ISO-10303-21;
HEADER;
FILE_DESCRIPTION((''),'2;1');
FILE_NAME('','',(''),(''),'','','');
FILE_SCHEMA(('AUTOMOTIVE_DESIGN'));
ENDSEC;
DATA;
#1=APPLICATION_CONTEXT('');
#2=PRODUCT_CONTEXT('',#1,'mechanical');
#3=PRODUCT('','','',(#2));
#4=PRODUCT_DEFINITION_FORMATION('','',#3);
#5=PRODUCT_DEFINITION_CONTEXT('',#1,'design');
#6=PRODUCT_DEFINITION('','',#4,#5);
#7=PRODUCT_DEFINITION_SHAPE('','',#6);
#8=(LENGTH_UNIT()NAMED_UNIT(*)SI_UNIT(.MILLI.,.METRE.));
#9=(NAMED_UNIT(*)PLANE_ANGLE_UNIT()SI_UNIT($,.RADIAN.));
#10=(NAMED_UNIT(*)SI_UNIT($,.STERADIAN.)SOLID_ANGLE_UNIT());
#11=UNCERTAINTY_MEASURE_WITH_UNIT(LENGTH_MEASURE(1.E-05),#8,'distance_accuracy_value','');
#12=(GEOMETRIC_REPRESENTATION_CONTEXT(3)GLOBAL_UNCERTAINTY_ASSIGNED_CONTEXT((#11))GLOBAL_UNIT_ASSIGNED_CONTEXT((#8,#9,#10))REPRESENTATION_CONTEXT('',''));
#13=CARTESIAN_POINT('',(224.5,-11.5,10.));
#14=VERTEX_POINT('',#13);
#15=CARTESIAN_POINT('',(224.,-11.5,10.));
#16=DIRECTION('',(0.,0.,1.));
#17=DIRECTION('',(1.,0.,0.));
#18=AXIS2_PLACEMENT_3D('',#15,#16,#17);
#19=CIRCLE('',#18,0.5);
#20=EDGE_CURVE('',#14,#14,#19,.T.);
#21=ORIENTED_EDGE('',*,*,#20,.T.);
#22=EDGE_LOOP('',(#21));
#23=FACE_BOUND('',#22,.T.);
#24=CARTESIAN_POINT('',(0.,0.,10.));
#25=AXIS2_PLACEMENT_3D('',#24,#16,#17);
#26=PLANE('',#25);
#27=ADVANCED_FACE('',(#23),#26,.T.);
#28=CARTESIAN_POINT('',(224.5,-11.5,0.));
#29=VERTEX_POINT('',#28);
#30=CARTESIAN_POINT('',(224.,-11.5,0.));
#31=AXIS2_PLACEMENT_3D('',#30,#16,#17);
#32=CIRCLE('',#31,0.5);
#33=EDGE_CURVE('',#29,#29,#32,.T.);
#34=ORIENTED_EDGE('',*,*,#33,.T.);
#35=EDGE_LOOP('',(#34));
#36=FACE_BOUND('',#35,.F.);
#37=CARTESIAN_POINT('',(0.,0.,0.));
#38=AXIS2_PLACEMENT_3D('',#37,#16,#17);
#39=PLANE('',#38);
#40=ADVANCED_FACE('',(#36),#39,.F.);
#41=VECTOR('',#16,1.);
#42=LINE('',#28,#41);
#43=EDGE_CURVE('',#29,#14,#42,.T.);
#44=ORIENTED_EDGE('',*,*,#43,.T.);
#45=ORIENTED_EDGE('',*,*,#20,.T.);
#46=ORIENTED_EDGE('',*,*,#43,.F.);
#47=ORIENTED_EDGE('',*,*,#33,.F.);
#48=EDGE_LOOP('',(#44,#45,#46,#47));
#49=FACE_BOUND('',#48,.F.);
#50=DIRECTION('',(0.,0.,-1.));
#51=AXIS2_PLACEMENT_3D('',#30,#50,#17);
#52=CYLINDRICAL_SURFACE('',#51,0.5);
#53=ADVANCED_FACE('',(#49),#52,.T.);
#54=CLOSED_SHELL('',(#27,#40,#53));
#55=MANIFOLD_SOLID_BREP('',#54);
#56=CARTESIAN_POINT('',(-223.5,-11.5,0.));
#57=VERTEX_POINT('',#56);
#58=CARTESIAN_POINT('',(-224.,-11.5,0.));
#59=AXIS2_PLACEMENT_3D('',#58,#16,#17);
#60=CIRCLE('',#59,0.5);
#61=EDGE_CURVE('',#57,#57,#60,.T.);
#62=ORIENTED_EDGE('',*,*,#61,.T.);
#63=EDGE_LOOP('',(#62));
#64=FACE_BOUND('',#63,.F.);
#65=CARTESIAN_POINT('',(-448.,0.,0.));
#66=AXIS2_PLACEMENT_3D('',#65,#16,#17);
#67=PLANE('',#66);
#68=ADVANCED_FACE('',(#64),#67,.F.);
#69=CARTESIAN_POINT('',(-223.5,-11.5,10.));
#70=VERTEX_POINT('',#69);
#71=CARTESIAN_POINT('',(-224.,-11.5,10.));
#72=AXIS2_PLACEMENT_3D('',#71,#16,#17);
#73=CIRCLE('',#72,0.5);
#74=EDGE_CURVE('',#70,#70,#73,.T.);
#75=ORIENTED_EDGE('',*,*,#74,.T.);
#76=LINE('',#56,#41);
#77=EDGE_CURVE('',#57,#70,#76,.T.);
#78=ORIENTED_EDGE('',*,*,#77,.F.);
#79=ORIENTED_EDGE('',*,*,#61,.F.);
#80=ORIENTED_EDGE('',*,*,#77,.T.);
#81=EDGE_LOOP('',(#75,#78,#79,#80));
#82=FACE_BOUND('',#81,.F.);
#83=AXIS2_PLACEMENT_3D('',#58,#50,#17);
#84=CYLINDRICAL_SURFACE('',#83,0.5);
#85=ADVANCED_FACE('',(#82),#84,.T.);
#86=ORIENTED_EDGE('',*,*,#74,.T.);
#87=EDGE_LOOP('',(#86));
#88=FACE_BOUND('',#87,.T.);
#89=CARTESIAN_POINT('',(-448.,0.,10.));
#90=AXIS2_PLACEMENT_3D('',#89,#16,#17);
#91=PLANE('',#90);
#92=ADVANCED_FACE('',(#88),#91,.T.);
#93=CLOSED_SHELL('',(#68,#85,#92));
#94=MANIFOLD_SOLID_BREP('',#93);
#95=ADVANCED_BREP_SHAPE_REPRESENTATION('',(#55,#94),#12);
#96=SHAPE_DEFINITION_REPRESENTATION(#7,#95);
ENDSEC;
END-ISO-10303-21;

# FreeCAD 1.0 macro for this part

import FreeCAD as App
import Part
import Sketcher
from FreeCAD import Vector

doc = App.newDocument("Part")
body = doc.addObject("PartDesign::Body", "Body")
body.AllowCompound = True

sketch1 = body.newObject("Sketcher::SketchObject", "Sketch")
sketch1.AttachmentSupport = (doc.getObject("XY_Plane"), [""])
sketch1.MapMode = "FlatFace"
sketch1.addGeometry(Part.Circle(Vector(224, -11.5, 0), Vector(0, 0, 1), 0.5), False)
sketch1.addConstraint([
    Sketcher.Constraint("Diameter", 0, 1.0),
    Sketcher.Constraint("DistanceX", -1, 1, 0, 3, 224.0),
    Sketcher.Constraint("DistanceY", 0, 3, -1, 1, 11.5),
])
pad1 = body.newObject("PartDesign::Pad", "Pad")
pad1.Profile = sketch1
pad1.Length = 10
doc.recompute()

linearpattern = body.newObject("PartDesign::LinearPattern", "LinearPattern")
linearpattern.Originals = [pad1]
linearpattern.Direction = (doc.getObject("X_Axis"), [""])
linearpattern.Mode = "offset"
linearpattern.Offset = 448
linearpattern.Occurrences = 2
linearpattern.Reversed = True
body.Tip = linearpattern

doc.recompute()
